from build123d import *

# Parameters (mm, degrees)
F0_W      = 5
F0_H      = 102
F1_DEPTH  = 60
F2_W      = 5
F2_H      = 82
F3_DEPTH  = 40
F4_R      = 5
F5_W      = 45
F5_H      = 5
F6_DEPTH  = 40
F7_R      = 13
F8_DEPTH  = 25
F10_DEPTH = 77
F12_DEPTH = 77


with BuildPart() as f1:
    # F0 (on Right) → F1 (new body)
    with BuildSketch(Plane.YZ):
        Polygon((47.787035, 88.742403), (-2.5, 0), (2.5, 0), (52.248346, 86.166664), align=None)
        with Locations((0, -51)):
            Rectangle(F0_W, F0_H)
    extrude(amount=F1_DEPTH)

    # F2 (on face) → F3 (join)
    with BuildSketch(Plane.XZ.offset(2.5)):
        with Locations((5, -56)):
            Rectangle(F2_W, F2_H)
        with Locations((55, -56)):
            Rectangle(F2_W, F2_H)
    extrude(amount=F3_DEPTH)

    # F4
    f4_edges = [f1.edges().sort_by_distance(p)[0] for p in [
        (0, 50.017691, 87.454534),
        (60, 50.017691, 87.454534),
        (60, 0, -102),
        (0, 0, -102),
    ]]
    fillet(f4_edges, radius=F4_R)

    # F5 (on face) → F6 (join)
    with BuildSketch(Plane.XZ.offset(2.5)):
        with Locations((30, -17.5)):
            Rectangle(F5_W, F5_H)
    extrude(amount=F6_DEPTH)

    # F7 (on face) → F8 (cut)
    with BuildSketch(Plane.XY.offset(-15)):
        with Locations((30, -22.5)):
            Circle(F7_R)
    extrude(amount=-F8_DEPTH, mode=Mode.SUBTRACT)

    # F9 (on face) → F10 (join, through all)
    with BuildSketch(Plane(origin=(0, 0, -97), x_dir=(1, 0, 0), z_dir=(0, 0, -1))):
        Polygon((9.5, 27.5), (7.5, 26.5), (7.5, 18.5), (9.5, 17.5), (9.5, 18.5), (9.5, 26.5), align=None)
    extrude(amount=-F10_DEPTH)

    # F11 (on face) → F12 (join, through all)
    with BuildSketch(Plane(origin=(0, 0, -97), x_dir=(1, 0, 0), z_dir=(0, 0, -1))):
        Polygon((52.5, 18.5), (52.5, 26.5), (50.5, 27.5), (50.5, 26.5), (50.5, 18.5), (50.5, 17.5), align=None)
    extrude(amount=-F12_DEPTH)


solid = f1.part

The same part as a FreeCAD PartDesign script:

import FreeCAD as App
import Part
import Sketcher
Q = App.Units.Quantity


def edges_at(feature, points):
    """Names of the edges that pass closest to the given points."""
    edges = feature.Shape.Edges
    near = lambda p: min(range(len(edges)), key=lambda i: edges[i].distToShape(Part.Vertex(*p))[0])
    return sorted({f"Edge{near(p) + 1}" for p in points})

doc = App.newDocument("Part")
body = doc.addObject("PartDesign::Body", "Body")

# Sketch on YZ plane
sketch1 = body.newObject("Sketcher::SketchObject", "Sketch")
sketch1.AttachmentSupport = (doc.getObject("YZ_Plane"), [""])
sketch1.MapMode = "FlatFace"
sketch1.addGeometry(Part.LineSegment(App.Vector(47.787035, 88.742403, 0), App.Vector(-2.5, 0, 0)), False)
sketch1.addGeometry(Part.LineSegment(App.Vector(-2.5, 0, 0), App.Vector(-2.5, -102, 0)), False)
sketch1.addGeometry(Part.LineSegment(App.Vector(-2.5, -102, 0), App.Vector(2.5, -102, 0)), False)
sketch1.addGeometry(Part.LineSegment(App.Vector(2.5, -102, 0), App.Vector(2.5, 0, 0)), False)
sketch1.addGeometry(Part.LineSegment(App.Vector(2.5, 0, 0), App.Vector(52.248346, 86.166664, 0)), False)
sketch1.addGeometry(Part.LineSegment(App.Vector(52.248346, 86.166664, 0), App.Vector(47.787035, 88.742403, 0)), False)
sketch1.addConstraint(Sketcher.Constraint("Coincident", 0, 2, 1, 1))
sketch1.addConstraint(Sketcher.Constraint("Coincident", 1, 2, 2, 1))
sketch1.addConstraint(Sketcher.Constraint("Coincident", 2, 2, 3, 1))
sketch1.addConstraint(Sketcher.Constraint("Coincident", 3, 2, 4, 1))
sketch1.addConstraint(Sketcher.Constraint("Coincident", 4, 2, 5, 1))
sketch1.addConstraint(Sketcher.Constraint("Coincident", 5, 2, 0, 1))
sketch1.addConstraint(Sketcher.Constraint("Vertical", 1))
sketch1.addConstraint(Sketcher.Constraint("Horizontal", 2))
sketch1.addConstraint(Sketcher.Constraint("Vertical", 3))
sketch1.addConstraint(Sketcher.Constraint("Symmetric", 0, 2, 3, 2, -1, 1))
sketch1.addConstraint(Sketcher.Constraint("PointOnObject", 0, 2, -1))
sketch1.addConstraint(Sketcher.Constraint("Perpendicular", 4, 5))
sketch1.addConstraint(Sketcher.Constraint("DistanceX", 2, 1, 2, 2, Q("5 mm")))
sketch1.addConstraint(Sketcher.Constraint("DistanceY", 1, 2, 1, 1, Q("102 mm")))
sketch1.addConstraint(Sketcher.Constraint("Angle", 4, Q("60 deg")))
sketch1.addConstraint(Sketcher.Constraint("Distance", 0, Q("102 mm")))
sketch1.addConstraint(Sketcher.Constraint("Distance", 5, Q("5.151478 mm")))
pad1 = body.newObject("PartDesign::Pad", "Pad")
pad1.Profile = sketch1
pad1.Length = 60

# Sketch on XZ plane
sketch2 = body.newObject("Sketcher::SketchObject", "Sketch001")
sketch2.AttachmentSupport = (doc.getObject("XZ_Plane"), [""])
sketch2.MapMode = "FlatFace"
sketch2.AttachmentOffset = App.Placement(App.Vector(0, 0, 2.5), App.Rotation())
sketch2.addGeometry(Part.LineSegment(App.Vector(2.5, -15, 0), App.Vector(2.5, -97, 0)), False)
sketch2.addGeometry(Part.LineSegment(App.Vector(2.5, -97, 0), App.Vector(7.5, -97, 0)), False)
sketch2.addGeometry(Part.LineSegment(App.Vector(7.5, -97, 0), App.Vector(7.5, -15, 0)), False)
sketch2.addGeometry(Part.LineSegment(App.Vector(7.5, -15, 0), App.Vector(2.5, -15, 0)), False)
sketch2.addGeometry(Part.LineSegment(App.Vector(52.5, -15, 0), App.Vector(52.5, -97, 0)), False)
sketch2.addGeometry(Part.LineSegment(App.Vector(52.5, -97, 0), App.Vector(57.5, -97, 0)), False)
sketch2.addGeometry(Part.LineSegment(App.Vector(57.5, -97, 0), App.Vector(57.5, -15, 0)), False)
sketch2.addGeometry(Part.LineSegment(App.Vector(57.5, -15, 0), App.Vector(52.5, -15, 0)), False)
sketch2.addConstraint(Sketcher.Constraint("Coincident", 0, 2, 1, 1))
sketch2.addConstraint(Sketcher.Constraint("Coincident", 1, 2, 2, 1))
sketch2.addConstraint(Sketcher.Constraint("Coincident", 2, 2, 3, 1))
sketch2.addConstraint(Sketcher.Constraint("Coincident", 3, 2, 0, 1))
sketch2.addConstraint(Sketcher.Constraint("Coincident", 4, 2, 5, 1))
sketch2.addConstraint(Sketcher.Constraint("Coincident", 5, 2, 6, 1))
sketch2.addConstraint(Sketcher.Constraint("Coincident", 6, 2, 7, 1))
sketch2.addConstraint(Sketcher.Constraint("Coincident", 7, 2, 4, 1))
sketch2.addConstraint(Sketcher.Constraint("Vertical", 0))
sketch2.addConstraint(Sketcher.Constraint("Horizontal", 1))
sketch2.addConstraint(Sketcher.Constraint("Vertical", 2))
sketch2.addConstraint(Sketcher.Constraint("Horizontal", 3))
sketch2.addConstraint(Sketcher.Constraint("Vertical", 4))
sketch2.addConstraint(Sketcher.Constraint("Horizontal", 5))
sketch2.addConstraint(Sketcher.Constraint("Vertical", 6))
sketch2.addConstraint(Sketcher.Constraint("Horizontal", 7))
sketch2.addConstraint(Sketcher.Constraint("Horizontal", 1, 2, 4, 2))
sketch2.addConstraint(Sketcher.Constraint("Horizontal", 3, 2, 6, 2))
sketch2.addConstraint(Sketcher.Constraint("Equal", 3, 5))
sketch2.addConstraint(Sketcher.Constraint("DistanceX", 1, 1, 1, 2, Q("5 mm")))
sketch2.addConstraint(Sketcher.Constraint("DistanceY", 0, 2, 0, 1, Q("82 mm")))
sketch2.addConstraint(Sketcher.Constraint("DistanceY", 0, 2, -1, 1, Q("97 mm")))
sketch2.addConstraint(Sketcher.Constraint("DistanceX", 1, 2, 4, 2, Q("45 mm")))
sketch2.addConstraint(Sketcher.Constraint("DistanceX", -1, 1, 0, 2, Q("2.5 mm")))
pad2 = body.newObject("PartDesign::Pad", "Pad001")
pad2.Profile = sketch2
pad2.Length = 40
doc.recompute()

fillet = body.newObject("PartDesign::Fillet", "Fillet")
fillet.Base = (pad2, edges_at(pad2, [
    (0, 50.018, 87.455),
    (60, 50.018, 87.455),
    (60, 0, -102),
    (0, 0, -102),
]))
fillet.Radius = 5

# Sketch on XZ plane
sketch3 = body.newObject("Sketcher::SketchObject", "Sketch002")
sketch3.AttachmentSupport = (doc.getObject("XZ_Plane"), [""])
sketch3.MapMode = "FlatFace"
sketch3.AttachmentOffset = App.Placement(App.Vector(0, 0, 2.5), App.Rotation())
sketch3.addGeometry(Part.LineSegment(App.Vector(7.5, -15, 0), App.Vector(7.5, -20, 0)), False)
sketch3.addGeometry(Part.LineSegment(App.Vector(7.5, -20, 0), App.Vector(52.5, -20, 0)), False)
sketch3.addGeometry(Part.LineSegment(App.Vector(52.5, -20, 0), App.Vector(52.5, -15, 0)), False)
sketch3.addGeometry(Part.LineSegment(App.Vector(52.5, -15, 0), App.Vector(7.5, -15, 0)), False)
sketch3.addConstraint(Sketcher.Constraint("Coincident", 0, 2, 1, 1))
sketch3.addConstraint(Sketcher.Constraint("Coincident", 1, 2, 2, 1))
sketch3.addConstraint(Sketcher.Constraint("Coincident", 2, 2, 3, 1))
sketch3.addConstraint(Sketcher.Constraint("Coincident", 3, 2, 0, 1))
sketch3.addConstraint(Sketcher.Constraint("Vertical", 0))
sketch3.addConstraint(Sketcher.Constraint("Horizontal", 1))
sketch3.addConstraint(Sketcher.Constraint("Vertical", 2))
sketch3.addConstraint(Sketcher.Constraint("Horizontal", 3))
sketch3.addConstraint(Sketcher.Constraint("DistanceX", 1, 1, 1, 2, Q("45 mm")))
sketch3.addConstraint(Sketcher.Constraint("DistanceY", 0, 2, 0, 1, Q("5 mm")))
sketch3.addConstraint(Sketcher.Constraint("DistanceY", 0, 2, -1, 1, Q("20 mm")))
sketch3.addConstraint(Sketcher.Constraint("DistanceX", -1, 1, 0, 2, Q("7.5 mm")))
pad3 = body.newObject("PartDesign::Pad", "Pad002")
pad3.Profile = sketch3
pad3.Length = 40

# Sketch on XY plane
sketch4 = body.newObject("Sketcher::SketchObject", "Sketch003")
sketch4.AttachmentSupport = (doc.getObject("XY_Plane"), [""])
sketch4.MapMode = "FlatFace"
sketch4.AttachmentOffset = App.Placement(App.Vector(0, 0, -15), App.Rotation())
sketch4.addGeometry(Part.Circle(App.Vector(30, -22.5, 0), App.Vector(0, 0, 1), 13), False)
sketch4.addConstraint(Sketcher.Constraint("Diameter", 0, Q("26 mm")))
sketch4.addConstraint(Sketcher.Constraint("DistanceX", -1, 1, 0, 3, Q("30 mm")))
sketch4.addConstraint(Sketcher.Constraint("DistanceY", 0, 3, -1, 1, Q("22.5 mm")))
pocket1 = body.newObject("PartDesign::Pocket", "Pocket")
pocket1.Profile = sketch4
pocket1.Length = 25

# Sketch on XY plane
sketch5 = body.newObject("Sketcher::SketchObject", "Sketch004")
sketch5.AttachmentSupport = (doc.getObject("XY_Plane"), [""])
sketch5.MapMode = "FlatFace"
sketch5.AttachmentOffset = App.Placement(App.Vector(0, 0, -97), App.Rotation())
sketch5.addGeometry(Part.LineSegment(App.Vector(9.5, -27.5, 0), App.Vector(7.5, -26.5, 0)), False)
sketch5.addGeometry(Part.LineSegment(App.Vector(7.5, -26.5, 0), App.Vector(7.5, -18.5, 0)), False)
sketch5.addGeometry(Part.LineSegment(App.Vector(7.5, -18.5, 0), App.Vector(9.5, -17.5, 0)), False)
sketch5.addGeometry(Part.LineSegment(App.Vector(9.5, -17.5, 0), App.Vector(9.5, -27.5, 0)), False)
sketch5.addConstraint(Sketcher.Constraint("Coincident", 0, 2, 1, 1))
sketch5.addConstraint(Sketcher.Constraint("Coincident", 1, 2, 2, 1))
sketch5.addConstraint(Sketcher.Constraint("Coincident", 2, 2, 3, 1))
sketch5.addConstraint(Sketcher.Constraint("Coincident", 3, 2, 0, 1))
sketch5.addConstraint(Sketcher.Constraint("Vertical", 1))
sketch5.addConstraint(Sketcher.Constraint("Vertical", 3))
sketch5.addConstraint(Sketcher.Constraint("Equal", 0, 2))
sketch5.addConstraint(Sketcher.Constraint("DistanceY", 1, 1, 1, 2, Q("8 mm")))
sketch5.addConstraint(Sketcher.Constraint("DistanceY", 3, 2, 3, 1, Q("10 mm")))
sketch5.addConstraint(Sketcher.Constraint("DistanceX", 1, 2, 2, 2, Q("2 mm")))
sketch5.addConstraint(Sketcher.Constraint("DistanceX", -1, 1, 0, 2, Q("7.5 mm")))
sketch5.addConstraint(Sketcher.Constraint("DistanceY", 0, 2, -1, 1, Q("26.5 mm")))
pad4 = body.newObject("PartDesign::Pad", "Pad003")
pad4.Profile = sketch5
pad4.Type = "UpToLast"

# Sketch on XY plane
sketch6 = body.newObject("Sketcher::SketchObject", "Sketch005")
sketch6.AttachmentSupport = (doc.getObject("XY_Plane"), [""])
sketch6.MapMode = "FlatFace"
sketch6.AttachmentOffset = App.Placement(App.Vector(0, 0, -97), App.Rotation())
sketch6.addGeometry(Part.LineSegment(App.Vector(52.5, -18.5, 0), App.Vector(52.5, -26.5, 0)), False)
sketch6.addGeometry(Part.LineSegment(App.Vector(52.5, -26.5, 0), App.Vector(50.5, -27.5, 0)), False)
sketch6.addGeometry(Part.LineSegment(App.Vector(50.5, -27.5, 0), App.Vector(50.5, -17.5, 0)), False)
sketch6.addGeometry(Part.LineSegment(App.Vector(50.5, -17.5, 0), App.Vector(52.5, -18.5, 0)), False)
sketch6.addConstraint(Sketcher.Constraint("Coincident", 0, 2, 1, 1))
sketch6.addConstraint(Sketcher.Constraint("Coincident", 1, 2, 2, 1))
sketch6.addConstraint(Sketcher.Constraint("Coincident", 2, 2, 3, 1))
sketch6.addConstraint(Sketcher.Constraint("Coincident", 3, 2, 0, 1))
sketch6.addConstraint(Sketcher.Constraint("Vertical", 0))
sketch6.addConstraint(Sketcher.Constraint("Vertical", 2))
sketch6.addConstraint(Sketcher.Constraint("Equal", 1, 3))
sketch6.addConstraint(Sketcher.Constraint("DistanceY", 0, 2, 0, 1, Q("8 mm")))
sketch6.addConstraint(Sketcher.Constraint("DistanceY", 2, 1, 2, 2, Q("10 mm")))
sketch6.addConstraint(Sketcher.Constraint("DistanceX", 1, 2, 0, 2, Q("2 mm")))
sketch6.addConstraint(Sketcher.Constraint("DistanceX", -1, 1, 0, 2, Q("52.5 mm")))
sketch6.addConstraint(Sketcher.Constraint("DistanceY", 0, 2, -1, 1, Q("26.5 mm")))
pad5 = body.newObject("PartDesign::Pad", "Pad004")
pad5.Profile = sketch6
pad5.Type = "UpToLast"

doc.recompute()
